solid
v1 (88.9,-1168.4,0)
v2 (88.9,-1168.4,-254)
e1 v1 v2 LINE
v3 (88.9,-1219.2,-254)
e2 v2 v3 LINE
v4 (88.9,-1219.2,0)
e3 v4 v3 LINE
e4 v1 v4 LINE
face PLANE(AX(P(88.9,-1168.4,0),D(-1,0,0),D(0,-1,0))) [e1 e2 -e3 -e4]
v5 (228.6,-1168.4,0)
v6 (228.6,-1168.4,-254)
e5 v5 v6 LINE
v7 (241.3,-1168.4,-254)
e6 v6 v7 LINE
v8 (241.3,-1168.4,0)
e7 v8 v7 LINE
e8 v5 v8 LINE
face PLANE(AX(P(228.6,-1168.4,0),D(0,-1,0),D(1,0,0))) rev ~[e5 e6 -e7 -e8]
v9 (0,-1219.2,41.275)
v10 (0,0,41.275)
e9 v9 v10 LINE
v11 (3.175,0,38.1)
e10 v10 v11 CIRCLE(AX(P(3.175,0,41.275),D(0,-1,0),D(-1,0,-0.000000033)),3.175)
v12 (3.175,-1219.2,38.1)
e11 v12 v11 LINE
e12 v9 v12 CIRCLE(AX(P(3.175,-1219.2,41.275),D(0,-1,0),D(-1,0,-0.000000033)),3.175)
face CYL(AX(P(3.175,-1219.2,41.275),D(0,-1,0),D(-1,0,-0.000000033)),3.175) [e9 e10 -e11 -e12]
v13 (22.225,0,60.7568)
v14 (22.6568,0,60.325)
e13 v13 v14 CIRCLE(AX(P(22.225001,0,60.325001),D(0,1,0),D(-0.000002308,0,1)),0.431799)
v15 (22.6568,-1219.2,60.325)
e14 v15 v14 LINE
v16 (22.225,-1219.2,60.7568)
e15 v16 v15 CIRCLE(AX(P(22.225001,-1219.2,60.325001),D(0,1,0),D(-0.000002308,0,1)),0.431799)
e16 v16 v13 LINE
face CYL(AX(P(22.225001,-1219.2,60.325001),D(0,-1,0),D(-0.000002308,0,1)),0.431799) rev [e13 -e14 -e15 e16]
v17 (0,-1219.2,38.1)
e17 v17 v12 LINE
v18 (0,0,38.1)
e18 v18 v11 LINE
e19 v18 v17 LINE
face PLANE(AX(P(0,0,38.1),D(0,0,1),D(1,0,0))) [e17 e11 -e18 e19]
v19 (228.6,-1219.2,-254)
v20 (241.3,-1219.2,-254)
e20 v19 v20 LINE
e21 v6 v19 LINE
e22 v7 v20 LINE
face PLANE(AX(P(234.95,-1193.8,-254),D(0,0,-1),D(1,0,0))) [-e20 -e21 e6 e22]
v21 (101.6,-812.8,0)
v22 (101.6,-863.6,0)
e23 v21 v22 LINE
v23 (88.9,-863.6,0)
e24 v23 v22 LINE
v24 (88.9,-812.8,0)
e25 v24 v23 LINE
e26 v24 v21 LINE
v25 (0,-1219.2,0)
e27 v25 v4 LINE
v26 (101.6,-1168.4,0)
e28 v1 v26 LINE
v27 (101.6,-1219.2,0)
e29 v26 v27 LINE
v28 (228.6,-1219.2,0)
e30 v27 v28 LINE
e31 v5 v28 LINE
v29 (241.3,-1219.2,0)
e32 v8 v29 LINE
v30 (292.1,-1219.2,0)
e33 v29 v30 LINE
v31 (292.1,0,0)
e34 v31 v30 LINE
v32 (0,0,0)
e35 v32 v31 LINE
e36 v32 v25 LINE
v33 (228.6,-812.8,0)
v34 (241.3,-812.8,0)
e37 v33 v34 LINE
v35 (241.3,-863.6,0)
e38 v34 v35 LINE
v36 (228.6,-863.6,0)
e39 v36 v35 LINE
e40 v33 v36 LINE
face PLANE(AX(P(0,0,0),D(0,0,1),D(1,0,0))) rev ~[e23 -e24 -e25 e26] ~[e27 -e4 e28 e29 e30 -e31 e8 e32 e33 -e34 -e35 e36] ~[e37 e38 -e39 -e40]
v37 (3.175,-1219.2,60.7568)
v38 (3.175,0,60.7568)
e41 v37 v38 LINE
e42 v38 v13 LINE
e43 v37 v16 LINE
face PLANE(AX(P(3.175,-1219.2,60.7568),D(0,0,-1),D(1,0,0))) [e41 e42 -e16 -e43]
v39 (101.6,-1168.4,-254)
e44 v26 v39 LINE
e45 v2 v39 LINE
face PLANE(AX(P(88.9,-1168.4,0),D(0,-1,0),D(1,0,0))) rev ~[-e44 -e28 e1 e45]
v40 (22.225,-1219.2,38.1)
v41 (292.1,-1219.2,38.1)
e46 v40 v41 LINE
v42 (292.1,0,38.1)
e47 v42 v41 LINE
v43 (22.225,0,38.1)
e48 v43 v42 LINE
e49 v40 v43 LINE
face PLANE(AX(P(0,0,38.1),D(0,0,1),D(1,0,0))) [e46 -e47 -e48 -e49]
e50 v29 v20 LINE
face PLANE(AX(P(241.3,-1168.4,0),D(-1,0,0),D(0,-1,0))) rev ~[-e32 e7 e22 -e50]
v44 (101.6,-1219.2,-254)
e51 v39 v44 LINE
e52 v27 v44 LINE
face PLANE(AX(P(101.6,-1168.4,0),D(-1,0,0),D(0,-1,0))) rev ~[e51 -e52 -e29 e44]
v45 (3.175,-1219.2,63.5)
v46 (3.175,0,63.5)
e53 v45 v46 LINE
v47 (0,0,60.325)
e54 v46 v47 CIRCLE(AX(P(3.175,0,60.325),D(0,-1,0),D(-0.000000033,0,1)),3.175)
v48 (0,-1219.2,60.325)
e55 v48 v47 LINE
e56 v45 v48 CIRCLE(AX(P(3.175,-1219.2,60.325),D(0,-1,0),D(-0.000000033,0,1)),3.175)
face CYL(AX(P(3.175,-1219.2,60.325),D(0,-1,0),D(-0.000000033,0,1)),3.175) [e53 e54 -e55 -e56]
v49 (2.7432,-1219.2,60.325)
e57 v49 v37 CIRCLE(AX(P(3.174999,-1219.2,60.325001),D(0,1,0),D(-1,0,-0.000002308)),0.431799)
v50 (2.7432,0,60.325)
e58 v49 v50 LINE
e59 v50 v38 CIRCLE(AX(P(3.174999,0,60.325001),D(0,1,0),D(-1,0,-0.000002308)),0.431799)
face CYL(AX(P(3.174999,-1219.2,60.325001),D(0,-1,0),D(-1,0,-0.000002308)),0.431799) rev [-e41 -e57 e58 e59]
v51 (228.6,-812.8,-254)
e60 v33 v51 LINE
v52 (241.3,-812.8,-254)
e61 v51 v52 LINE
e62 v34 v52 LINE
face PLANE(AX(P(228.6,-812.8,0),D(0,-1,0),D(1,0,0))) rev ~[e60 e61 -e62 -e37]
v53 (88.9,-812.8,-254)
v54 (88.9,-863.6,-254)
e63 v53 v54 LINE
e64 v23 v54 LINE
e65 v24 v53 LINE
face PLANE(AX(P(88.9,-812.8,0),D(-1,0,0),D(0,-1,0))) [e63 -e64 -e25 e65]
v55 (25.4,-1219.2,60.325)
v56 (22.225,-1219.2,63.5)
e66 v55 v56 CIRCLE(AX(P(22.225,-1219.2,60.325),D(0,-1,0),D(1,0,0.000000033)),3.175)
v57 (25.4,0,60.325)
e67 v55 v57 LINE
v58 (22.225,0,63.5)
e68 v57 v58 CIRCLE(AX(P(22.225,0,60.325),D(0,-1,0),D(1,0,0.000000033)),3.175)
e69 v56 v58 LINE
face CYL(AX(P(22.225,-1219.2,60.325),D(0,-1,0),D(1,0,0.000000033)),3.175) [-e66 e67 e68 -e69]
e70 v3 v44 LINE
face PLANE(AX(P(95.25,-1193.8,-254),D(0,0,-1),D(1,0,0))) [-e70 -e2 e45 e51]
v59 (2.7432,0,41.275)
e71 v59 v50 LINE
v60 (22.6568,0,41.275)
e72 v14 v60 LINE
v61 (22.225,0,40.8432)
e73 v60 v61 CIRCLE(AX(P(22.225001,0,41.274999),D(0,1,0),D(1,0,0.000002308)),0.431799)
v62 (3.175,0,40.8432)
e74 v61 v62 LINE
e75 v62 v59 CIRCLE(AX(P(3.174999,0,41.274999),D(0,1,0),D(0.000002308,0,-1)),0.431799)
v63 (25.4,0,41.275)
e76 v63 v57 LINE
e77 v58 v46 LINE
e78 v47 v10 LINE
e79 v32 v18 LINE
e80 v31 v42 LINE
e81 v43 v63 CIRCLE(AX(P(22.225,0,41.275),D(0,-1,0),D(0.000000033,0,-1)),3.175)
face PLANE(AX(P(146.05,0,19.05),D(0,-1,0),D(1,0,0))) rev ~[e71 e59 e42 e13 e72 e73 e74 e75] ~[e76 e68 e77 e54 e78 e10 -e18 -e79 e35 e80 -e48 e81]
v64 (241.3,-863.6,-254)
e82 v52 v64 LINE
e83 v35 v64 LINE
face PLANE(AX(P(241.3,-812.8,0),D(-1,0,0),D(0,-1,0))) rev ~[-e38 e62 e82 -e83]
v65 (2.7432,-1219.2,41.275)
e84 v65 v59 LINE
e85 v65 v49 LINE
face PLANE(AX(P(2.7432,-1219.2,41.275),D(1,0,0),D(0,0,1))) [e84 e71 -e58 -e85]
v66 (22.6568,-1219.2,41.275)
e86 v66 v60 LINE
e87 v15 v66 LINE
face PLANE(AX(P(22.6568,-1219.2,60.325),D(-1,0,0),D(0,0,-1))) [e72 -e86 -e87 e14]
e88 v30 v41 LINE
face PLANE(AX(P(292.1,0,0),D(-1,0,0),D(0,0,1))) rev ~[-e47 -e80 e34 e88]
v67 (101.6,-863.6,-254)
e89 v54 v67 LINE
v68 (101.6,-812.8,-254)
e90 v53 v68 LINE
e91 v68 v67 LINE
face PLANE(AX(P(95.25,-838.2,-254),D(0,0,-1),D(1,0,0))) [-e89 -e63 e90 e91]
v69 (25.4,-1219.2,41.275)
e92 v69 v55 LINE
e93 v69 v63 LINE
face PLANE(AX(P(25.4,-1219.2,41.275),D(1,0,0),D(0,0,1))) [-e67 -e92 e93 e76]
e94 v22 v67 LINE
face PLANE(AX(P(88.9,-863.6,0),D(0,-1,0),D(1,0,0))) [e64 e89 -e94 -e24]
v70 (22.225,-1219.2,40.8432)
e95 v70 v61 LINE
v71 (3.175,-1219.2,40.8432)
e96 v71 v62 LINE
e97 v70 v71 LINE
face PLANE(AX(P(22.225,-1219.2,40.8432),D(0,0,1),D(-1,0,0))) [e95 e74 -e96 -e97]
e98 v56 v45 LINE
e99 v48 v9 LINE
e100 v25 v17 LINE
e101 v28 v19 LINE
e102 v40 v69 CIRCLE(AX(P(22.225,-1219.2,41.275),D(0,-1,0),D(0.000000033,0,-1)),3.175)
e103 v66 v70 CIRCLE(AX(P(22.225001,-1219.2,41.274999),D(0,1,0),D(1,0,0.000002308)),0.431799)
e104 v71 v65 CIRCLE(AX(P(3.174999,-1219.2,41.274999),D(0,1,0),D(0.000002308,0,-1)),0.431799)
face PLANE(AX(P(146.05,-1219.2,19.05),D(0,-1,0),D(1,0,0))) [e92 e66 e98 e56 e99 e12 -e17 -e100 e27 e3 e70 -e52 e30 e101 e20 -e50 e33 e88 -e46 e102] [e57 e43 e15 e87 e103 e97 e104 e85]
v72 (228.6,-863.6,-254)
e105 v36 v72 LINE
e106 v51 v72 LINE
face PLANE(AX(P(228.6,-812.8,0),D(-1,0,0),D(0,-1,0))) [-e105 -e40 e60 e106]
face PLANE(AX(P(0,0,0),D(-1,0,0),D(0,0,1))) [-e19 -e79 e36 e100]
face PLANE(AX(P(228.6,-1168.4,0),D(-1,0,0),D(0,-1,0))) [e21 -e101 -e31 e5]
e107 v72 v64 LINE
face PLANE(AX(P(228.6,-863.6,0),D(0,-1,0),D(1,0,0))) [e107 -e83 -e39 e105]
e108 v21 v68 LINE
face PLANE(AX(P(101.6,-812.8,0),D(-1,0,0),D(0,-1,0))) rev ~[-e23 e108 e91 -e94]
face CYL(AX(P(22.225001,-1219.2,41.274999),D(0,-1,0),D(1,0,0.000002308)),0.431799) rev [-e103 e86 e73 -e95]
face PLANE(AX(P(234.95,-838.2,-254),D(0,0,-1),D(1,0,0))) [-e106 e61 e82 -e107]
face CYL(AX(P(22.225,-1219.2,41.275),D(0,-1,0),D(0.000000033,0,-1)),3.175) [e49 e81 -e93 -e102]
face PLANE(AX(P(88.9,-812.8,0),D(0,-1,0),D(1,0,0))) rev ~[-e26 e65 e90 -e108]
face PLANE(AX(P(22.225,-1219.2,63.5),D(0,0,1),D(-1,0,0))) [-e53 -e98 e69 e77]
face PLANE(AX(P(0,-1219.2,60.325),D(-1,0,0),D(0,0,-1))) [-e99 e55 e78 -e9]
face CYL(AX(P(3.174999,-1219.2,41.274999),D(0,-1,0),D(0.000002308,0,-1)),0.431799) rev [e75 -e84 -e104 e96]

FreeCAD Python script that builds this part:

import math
import FreeCAD as App
import Part
import Sketcher
from FreeCAD import Vector
Q = App.Units.Quantity

doc = App.newDocument("Part")
body = doc.addObject("PartDesign::Body", "Body")

# Sketch on XZ plane
sketch1 = doc.addObject("Sketcher::SketchObject", "Sketch")
body.addObject(sketch1)
sketch1.AttachmentSupport = (doc.XZ_Plane, [""])
sketch1.MapMode = "FlatFace"
sketch1.addGeometry(Part.LineSegment(Vector(0, 38, 0), Vector(0, 0, 0)), False)
sketch1.addGeometry(Part.LineSegment(Vector(0, 0, 0), Vector(292, 0, 0)), False)
sketch1.addGeometry(Part.LineSegment(Vector(292, 0, 0), Vector(292, 38, 0)), False)
sketch1.addGeometry(Part.LineSegment(Vector(292, 38, 0), Vector(0, 38, 0)), False)
sketch1.addConstraint(Sketcher.Constraint("Coincident", 0, 2, 1, 1))
sketch1.addConstraint(Sketcher.Constraint("Coincident", 1, 2, 2, 1))
sketch1.addConstraint(Sketcher.Constraint("Coincident", 2, 2, 3, 1))
sketch1.addConstraint(Sketcher.Constraint("Coincident", 3, 2, 0, 1))
sketch1.addConstraint(Sketcher.Constraint("Vertical", 0))
sketch1.addConstraint(Sketcher.Constraint("Horizontal", 1))
sketch1.addConstraint(Sketcher.Constraint("Vertical", 2))
sketch1.addConstraint(Sketcher.Constraint("Horizontal", 3))
sketch1.addConstraint(Sketcher.Constraint("Coincident", 0, 2, -1, 1))
sketch1.addConstraint(Sketcher.Constraint("DistanceX", 1, 1, 1, 2, Q("11.5 in")))
sketch1.addConstraint(Sketcher.Constraint("DistanceY", 0, 2, 0, 1, Q("1.5 in")))
pad1 = doc.addObject("PartDesign::Pad", "Pad")
body.addObject(pad1)
pad1.Profile = sketch1
pad1.Length = Q("48 in")

# Sketch on XZ plane
sketch2 = doc.addObject("Sketcher::SketchObject", "Sketch001")
body.addObject(sketch2)
sketch2.AttachmentSupport = (doc.XZ_Plane, [""])
sketch2.MapMode = "FlatFace"
sketch2.AttachmentOffset = App.Placement(Vector(0, 0, 48 * 25.4), App.Rotation())
sketch2.addGeometry(Part.ArcOfCircle(Part.Circle(Vector(3.18, 41.28, 0), Vector(0, 0, 1), 3.18), math.radians(-180), math.radians(-90)), False)
sketch2.addGeometry(Part.LineSegment(Vector(3.17, 38.1, 0), Vector(22.23, 38.1, 0)), False)
sketch2.addGeometry(Part.ArcOfCircle(Part.Circle(Vector(22.22, 41.28, 0), Vector(0, 0, 1), 3.18), math.radians(-90), math.radians(0)), False)
sketch2.addGeometry(Part.LineSegment(Vector(25.4, 41.27, 0), Vector(25.4, 60.33, 0)), False)
sketch2.addGeometry(Part.ArcOfCircle(Part.Circle(Vector(22.22, 60.32, 0), Vector(0, 0, 1), 3.18), math.radians(0), math.radians(90)), False)
sketch2.addGeometry(Part.LineSegment(Vector(22.23, 63.5, 0), Vector(3.17, 63.5, 0)), False)
sketch2.addGeometry(Part.ArcOfCircle(Part.Circle(Vector(3.18, 60.32, 0), Vector(0, 0, 1), 3.18), math.radians(90), math.radians(180)), False)
sketch2.addGeometry(Part.LineSegment(Vector(0, 60.33, 0), Vector(0, 41.27, 0)), False)
sketch2.addGeometry(Part.LineSegment(Vector(22.66, 60.33, 0), Vector(22.66, 41.27, 0)), False)
sketch2.addGeometry(Part.ArcOfCircle(Part.Circle(Vector(22.23, 41.27, 0), Vector(0, 0, 1), 0.43), math.radians(-90), math.radians(0)), False)
sketch2.addGeometry(Part.LineSegment(Vector(22.23, 40.84, 0), Vector(3.17, 40.84, 0)), False)
sketch2.addGeometry(Part.ArcOfCircle(Part.Circle(Vector(3.17, 41.27, 0), Vector(0, 0, 1), 0.43), math.radians(180), math.radians(270)), False)
sketch2.addGeometry(Part.LineSegment(Vector(2.74, 41.27, 0), Vector(2.74, 60.33, 0)), False)
sketch2.addGeometry(Part.ArcOfCircle(Part.Circle(Vector(3.17, 60.33, 0), Vector(0, 0, 1), 0.43), math.radians(90), math.radians(180)), False)
sketch2.addGeometry(Part.LineSegment(Vector(3.17, 60.76, 0), Vector(22.23, 60.76, 0)), False)
sketch2.addGeometry(Part.ArcOfCircle(Part.Circle(Vector(22.23, 60.33, 0), Vector(0, 0, 1), 0.43), math.radians(0), math.radians(90)), False)
sketch2.addConstraint(Sketcher.Constraint("Tangent", 0, 2, 1, 1))
sketch2.addConstraint(Sketcher.Constraint("Tangent", 1, 2, 2, 1))
sketch2.addConstraint(Sketcher.Constraint("Tangent", 2, 2, 3, 1))
sketch2.addConstraint(Sketcher.Constraint("Tangent", 3, 2, 4, 1))
sketch2.addConstraint(Sketcher.Constraint("Tangent", 4, 2, 5, 1))
sketch2.addConstraint(Sketcher.Constraint("Tangent", 5, 2, 6, 1))
sketch2.addConstraint(Sketcher.Constraint("Tangent", 6, 2, 7, 1))
sketch2.addConstraint(Sketcher.Constraint("Tangent", 7, 2, 0, 1))
sketch2.addConstraint(Sketcher.Constraint("Coincident", 8, 2, 9, 2))
sketch2.addConstraint(Sketcher.Constraint("Coincident", 9, 1, 10, 1))
sketch2.addConstraint(Sketcher.Constraint("Coincident", 10, 2, 11, 2))
sketch2.addConstraint(Sketcher.Constraint("Coincident", 11, 1, 12, 1))
sketch2.addConstraint(Sketcher.Constraint("Coincident", 12, 2, 13, 2))
sketch2.addConstraint(Sketcher.Constraint("Coincident", 13, 1, 14, 1))
sketch2.addConstraint(Sketcher.Constraint("Coincident", 14, 2, 15, 2))
sketch2.addConstraint(Sketcher.Constraint("Coincident", 15, 1, 8, 1))
sketch2.addConstraint(Sketcher.Constraint("Horizontal", 1))
sketch2.addConstraint(Sketcher.Constraint("Vertical", 3))
sketch2.addConstraint(Sketcher.Constraint("Horizontal", 5))
sketch2.addConstraint(Sketcher.Constraint("Vertical", 7))
sketch2.addConstraint(Sketcher.Constraint("Vertical", 8))
sketch2.addConstraint(Sketcher.Constraint("Horizontal", 10))
sketch2.addConstraint(Sketcher.Constraint("Vertical", 12))
sketch2.addConstraint(Sketcher.Constraint("Horizontal", 14))
sketch2.addConstraint(Sketcher.Constraint("Coincident", 9, 3, 2, 3))
sketch2.addConstraint(Sketcher.Constraint("Coincident", 11, 3, 0, 3))
sketch2.addConstraint(Sketcher.Constraint("Coincident", 13, 3, 6, 3))
sketch2.addConstraint(Sketcher.Constraint("Equal", 0, 2))
sketch2.addConstraint(Sketcher.Constraint("Equal", 2, 4))
sketch2.addConstraint(Sketcher.Constraint("Equal", 4, 6))
sketch2.addConstraint(Sketcher.Constraint("Equal", 13, 15))
sketch2.addConstraint(Sketcher.Constraint("PointOnObject", 6, 2, -2))
sketch2.addConstraint(Sketcher.Constraint("Horizontal", 7, 2, 8, 2))
sketch2.addConstraint(Sketcher.Constraint("Horizontal", 8, 2, 11, 1))
sketch2.addConstraint(Sketcher.Constraint("Horizontal", 6, 2, 12, 2))
sketch2.addConstraint(Sketcher.Constraint("Horizontal", 12, 2, 15, 1))
sketch2.addConstraint(Sketcher.Constraint("Vertical", 4, 2, 9, 1))
sketch2.addConstraint(Sketcher.Constraint("Vertical", 5, 2, 10, 2))
sketch2.addConstraint(Sketcher.Constraint("Vertical", 10, 2, 13, 1))
sketch2.addConstraint(Sketcher.Constraint("Vertical", 9, 1, 14, 2))
sketch2.addConstraint(Sketcher.Constraint("Equal", 14, 3))
sketch2.addConstraint(Sketcher.Constraint("DistanceX", -1, 1, 2, 2, Q("1 in")))
sketch2.addConstraint(Sketcher.Constraint("Radius", 0, Q("0.125 in")))
sketch2.addConstraint(Sketcher.Constraint("Radius", 9, Q("0.017 in")))
sketch2.addConstraint(Sketcher.Constraint("DistanceY", -1, 1, 0, 2, Q("1.5 in")))
pad2 = doc.addObject("PartDesign::Pad", "Pad001")
body.addObject(pad2)
pad2.Profile = sketch2
pad2.Length = Q("48 in")
pad2.Reversed = True

# Sketch on XY plane
sketch3 = doc.addObject("Sketcher::SketchObject", "Sketch002")
body.addObject(sketch3)
sketch3.AttachmentSupport = (doc.XY_Plane, [""])
sketch3.MapMode = "FlatFace"
sketch3.addGeometry(Part.LineSegment(Vector(89, -1219, 0), Vector(89, -1168, 0)), False)
sketch3.addGeometry(Part.LineSegment(Vector(89, -1168, 0), Vector(102, -1168, 0)), False)
sketch3.addGeometry(Part.LineSegment(Vector(102, -1168, 0), Vector(102, -1219, 0)), False)
sketch3.addGeometry(Part.LineSegment(Vector(102, -1219, 0), Vector(89, -1219, 0)), False)
sketch3.addGeometry(Part.LineSegment(Vector(229, -1219, 0), Vector(229, -1168, 0)), False)
sketch3.addGeometry(Part.LineSegment(Vector(229, -1168, 0), Vector(241, -1168, 0)), False)
sketch3.addGeometry(Part.LineSegment(Vector(241, -1168, 0), Vector(241, -1219, 0)), False)
sketch3.addGeometry(Part.LineSegment(Vector(241, -1219, 0), Vector(229, -1219, 0)), False)
sketch3.addGeometry(Part.LineSegment(Vector(89, -864, 0), Vector(89, -813, 0)), False)
sketch3.addGeometry(Part.LineSegment(Vector(89, -813, 0), Vector(102, -813, 0)), False)
sketch3.addGeometry(Part.LineSegment(Vector(102, -813, 0), Vector(102, -864, 0)), False)
sketch3.addGeometry(Part.LineSegment(Vector(102, -864, 0), Vector(89, -864, 0)), False)
sketch3.addGeometry(Part.LineSegment(Vector(229, -864, 0), Vector(229, -813, 0)), False)
sketch3.addGeometry(Part.LineSegment(Vector(229, -813, 0), Vector(241, -813, 0)), False)
sketch3.addGeometry(Part.LineSegment(Vector(241, -813, 0), Vector(241, -864, 0)), False)
sketch3.addGeometry(Part.LineSegment(Vector(241, -864, 0), Vector(229, -864, 0)), False)
sketch3.addConstraint(Sketcher.Constraint("Coincident", 0, 2, 1, 1))
sketch3.addConstraint(Sketcher.Constraint("Coincident", 1, 2, 2, 1))
sketch3.addConstraint(Sketcher.Constraint("Coincident", 2, 2, 3, 1))
sketch3.addConstraint(Sketcher.Constraint("Coincident", 3, 2, 0, 1))
sketch3.addConstraint(Sketcher.Constraint("Coincident", 4, 2, 5, 1))
sketch3.addConstraint(Sketcher.Constraint("Coincident", 5, 2, 6, 1))
sketch3.addConstraint(Sketcher.Constraint("Coincident", 6, 2, 7, 1))
sketch3.addConstraint(Sketcher.Constraint("Coincident", 7, 2, 4, 1))
sketch3.addConstraint(Sketcher.Constraint("Coincident", 8, 2, 9, 1))
sketch3.addConstraint(Sketcher.Constraint("Coincident", 9, 2, 10, 1))
sketch3.addConstraint(Sketcher.Constraint("Coincident", 10, 2, 11, 1))
sketch3.addConstraint(Sketcher.Constraint("Coincident", 11, 2, 8, 1))
sketch3.addConstraint(Sketcher.Constraint("Coincident", 12, 2, 13, 1))
sketch3.addConstraint(Sketcher.Constraint("Coincident", 13, 2, 14, 1))
sketch3.addConstraint(Sketcher.Constraint("Coincident", 14, 2, 15, 1))
sketch3.addConstraint(Sketcher.Constraint("Coincident", 15, 2, 12, 1))
sketch3.addConstraint(Sketcher.Constraint("Vertical", 0))
sketch3.addConstraint(Sketcher.Constraint("Horizontal", 1))
sketch3.addConstraint(Sketcher.Constraint("Vertical", 2))
sketch3.addConstraint(Sketcher.Constraint("Horizontal", 3))
sketch3.addConstraint(Sketcher.Constraint("Vertical", 4))
sketch3.addConstraint(Sketcher.Constraint("Horizontal", 5))
sketch3.addConstraint(Sketcher.Constraint("Vertical", 6))
sketch3.addConstraint(Sketcher.Constraint("Horizontal", 7))
sketch3.addConstraint(Sketcher.Constraint("Vertical", 8))
sketch3.addConstraint(Sketcher.Constraint("Horizontal", 9))
sketch3.addConstraint(Sketcher.Constraint("Vertical", 10))
sketch3.addConstraint(Sketcher.Constraint("Horizontal", 11))
sketch3.addConstraint(Sketcher.Constraint("Vertical", 12))
sketch3.addConstraint(Sketcher.Constraint("Horizontal", 13))
sketch3.addConstraint(Sketcher.Constraint("Vertical", 14))
sketch3.addConstraint(Sketcher.Constraint("Horizontal", 15))
sketch3.addConstraint(Sketcher.Constraint("Horizontal", 1, 2, 4, 2))
sketch3.addConstraint(Sketcher.Constraint("Horizontal", 3, 2, 6, 2))
sketch3.addConstraint(Sketcher.Constraint("Horizontal", 9, 2, 12, 2))
sketch3.addConstraint(Sketcher.Constraint("Horizontal", 11, 2, 14, 2))
sketch3.addConstraint(Sketcher.Constraint("Vertical", 3, 2, 8, 2))
sketch3.addConstraint(Sketcher.Constraint("Vertical", 2, 2, 9, 2))
sketch3.addConstraint(Sketcher.Constraint("Vertical", 7, 2, 12, 2))
sketch3.addConstraint(Sketcher.Constraint("Vertical", 6, 2, 13, 2))
sketch3.addConstraint(Sketcher.Constraint("Equal", 3, 5))
sketch3.addConstraint(Sketcher.Constraint("Equal", 6, 8))
sketch3.addConstraint(Sketcher.Constraint("DistanceY", 0, 1, 0, 2, Q("2 in")))
sketch3.addConstraint(Sketcher.Constraint("DistanceX", 1, 1, 1, 2, Q("0.5 in")))
sketch3.addConstraint(Sketcher.Constraint("DistanceY", 0, 2, -1, 1, Q("46 in")))
sketch3.addConstraint(Sketcher.Constraint("DistanceX", -1, 1, 1, 2, Q("4 in")))
sketch3.addConstraint(Sketcher.Constraint("DistanceX", -1, 1, 4, 2, Q("9 in")))
sketch3.addConstraint(Sketcher.Constraint("DistanceY", 8, 2, -1, 1, Q("32 in")))
pad3 = doc.addObject("PartDesign::Pad", "Pad002")
body.addObject(pad3)
pad3.Profile = sketch3
pad3.Length = Q("10 in")
pad3.Reversed = True

doc.recompute()
